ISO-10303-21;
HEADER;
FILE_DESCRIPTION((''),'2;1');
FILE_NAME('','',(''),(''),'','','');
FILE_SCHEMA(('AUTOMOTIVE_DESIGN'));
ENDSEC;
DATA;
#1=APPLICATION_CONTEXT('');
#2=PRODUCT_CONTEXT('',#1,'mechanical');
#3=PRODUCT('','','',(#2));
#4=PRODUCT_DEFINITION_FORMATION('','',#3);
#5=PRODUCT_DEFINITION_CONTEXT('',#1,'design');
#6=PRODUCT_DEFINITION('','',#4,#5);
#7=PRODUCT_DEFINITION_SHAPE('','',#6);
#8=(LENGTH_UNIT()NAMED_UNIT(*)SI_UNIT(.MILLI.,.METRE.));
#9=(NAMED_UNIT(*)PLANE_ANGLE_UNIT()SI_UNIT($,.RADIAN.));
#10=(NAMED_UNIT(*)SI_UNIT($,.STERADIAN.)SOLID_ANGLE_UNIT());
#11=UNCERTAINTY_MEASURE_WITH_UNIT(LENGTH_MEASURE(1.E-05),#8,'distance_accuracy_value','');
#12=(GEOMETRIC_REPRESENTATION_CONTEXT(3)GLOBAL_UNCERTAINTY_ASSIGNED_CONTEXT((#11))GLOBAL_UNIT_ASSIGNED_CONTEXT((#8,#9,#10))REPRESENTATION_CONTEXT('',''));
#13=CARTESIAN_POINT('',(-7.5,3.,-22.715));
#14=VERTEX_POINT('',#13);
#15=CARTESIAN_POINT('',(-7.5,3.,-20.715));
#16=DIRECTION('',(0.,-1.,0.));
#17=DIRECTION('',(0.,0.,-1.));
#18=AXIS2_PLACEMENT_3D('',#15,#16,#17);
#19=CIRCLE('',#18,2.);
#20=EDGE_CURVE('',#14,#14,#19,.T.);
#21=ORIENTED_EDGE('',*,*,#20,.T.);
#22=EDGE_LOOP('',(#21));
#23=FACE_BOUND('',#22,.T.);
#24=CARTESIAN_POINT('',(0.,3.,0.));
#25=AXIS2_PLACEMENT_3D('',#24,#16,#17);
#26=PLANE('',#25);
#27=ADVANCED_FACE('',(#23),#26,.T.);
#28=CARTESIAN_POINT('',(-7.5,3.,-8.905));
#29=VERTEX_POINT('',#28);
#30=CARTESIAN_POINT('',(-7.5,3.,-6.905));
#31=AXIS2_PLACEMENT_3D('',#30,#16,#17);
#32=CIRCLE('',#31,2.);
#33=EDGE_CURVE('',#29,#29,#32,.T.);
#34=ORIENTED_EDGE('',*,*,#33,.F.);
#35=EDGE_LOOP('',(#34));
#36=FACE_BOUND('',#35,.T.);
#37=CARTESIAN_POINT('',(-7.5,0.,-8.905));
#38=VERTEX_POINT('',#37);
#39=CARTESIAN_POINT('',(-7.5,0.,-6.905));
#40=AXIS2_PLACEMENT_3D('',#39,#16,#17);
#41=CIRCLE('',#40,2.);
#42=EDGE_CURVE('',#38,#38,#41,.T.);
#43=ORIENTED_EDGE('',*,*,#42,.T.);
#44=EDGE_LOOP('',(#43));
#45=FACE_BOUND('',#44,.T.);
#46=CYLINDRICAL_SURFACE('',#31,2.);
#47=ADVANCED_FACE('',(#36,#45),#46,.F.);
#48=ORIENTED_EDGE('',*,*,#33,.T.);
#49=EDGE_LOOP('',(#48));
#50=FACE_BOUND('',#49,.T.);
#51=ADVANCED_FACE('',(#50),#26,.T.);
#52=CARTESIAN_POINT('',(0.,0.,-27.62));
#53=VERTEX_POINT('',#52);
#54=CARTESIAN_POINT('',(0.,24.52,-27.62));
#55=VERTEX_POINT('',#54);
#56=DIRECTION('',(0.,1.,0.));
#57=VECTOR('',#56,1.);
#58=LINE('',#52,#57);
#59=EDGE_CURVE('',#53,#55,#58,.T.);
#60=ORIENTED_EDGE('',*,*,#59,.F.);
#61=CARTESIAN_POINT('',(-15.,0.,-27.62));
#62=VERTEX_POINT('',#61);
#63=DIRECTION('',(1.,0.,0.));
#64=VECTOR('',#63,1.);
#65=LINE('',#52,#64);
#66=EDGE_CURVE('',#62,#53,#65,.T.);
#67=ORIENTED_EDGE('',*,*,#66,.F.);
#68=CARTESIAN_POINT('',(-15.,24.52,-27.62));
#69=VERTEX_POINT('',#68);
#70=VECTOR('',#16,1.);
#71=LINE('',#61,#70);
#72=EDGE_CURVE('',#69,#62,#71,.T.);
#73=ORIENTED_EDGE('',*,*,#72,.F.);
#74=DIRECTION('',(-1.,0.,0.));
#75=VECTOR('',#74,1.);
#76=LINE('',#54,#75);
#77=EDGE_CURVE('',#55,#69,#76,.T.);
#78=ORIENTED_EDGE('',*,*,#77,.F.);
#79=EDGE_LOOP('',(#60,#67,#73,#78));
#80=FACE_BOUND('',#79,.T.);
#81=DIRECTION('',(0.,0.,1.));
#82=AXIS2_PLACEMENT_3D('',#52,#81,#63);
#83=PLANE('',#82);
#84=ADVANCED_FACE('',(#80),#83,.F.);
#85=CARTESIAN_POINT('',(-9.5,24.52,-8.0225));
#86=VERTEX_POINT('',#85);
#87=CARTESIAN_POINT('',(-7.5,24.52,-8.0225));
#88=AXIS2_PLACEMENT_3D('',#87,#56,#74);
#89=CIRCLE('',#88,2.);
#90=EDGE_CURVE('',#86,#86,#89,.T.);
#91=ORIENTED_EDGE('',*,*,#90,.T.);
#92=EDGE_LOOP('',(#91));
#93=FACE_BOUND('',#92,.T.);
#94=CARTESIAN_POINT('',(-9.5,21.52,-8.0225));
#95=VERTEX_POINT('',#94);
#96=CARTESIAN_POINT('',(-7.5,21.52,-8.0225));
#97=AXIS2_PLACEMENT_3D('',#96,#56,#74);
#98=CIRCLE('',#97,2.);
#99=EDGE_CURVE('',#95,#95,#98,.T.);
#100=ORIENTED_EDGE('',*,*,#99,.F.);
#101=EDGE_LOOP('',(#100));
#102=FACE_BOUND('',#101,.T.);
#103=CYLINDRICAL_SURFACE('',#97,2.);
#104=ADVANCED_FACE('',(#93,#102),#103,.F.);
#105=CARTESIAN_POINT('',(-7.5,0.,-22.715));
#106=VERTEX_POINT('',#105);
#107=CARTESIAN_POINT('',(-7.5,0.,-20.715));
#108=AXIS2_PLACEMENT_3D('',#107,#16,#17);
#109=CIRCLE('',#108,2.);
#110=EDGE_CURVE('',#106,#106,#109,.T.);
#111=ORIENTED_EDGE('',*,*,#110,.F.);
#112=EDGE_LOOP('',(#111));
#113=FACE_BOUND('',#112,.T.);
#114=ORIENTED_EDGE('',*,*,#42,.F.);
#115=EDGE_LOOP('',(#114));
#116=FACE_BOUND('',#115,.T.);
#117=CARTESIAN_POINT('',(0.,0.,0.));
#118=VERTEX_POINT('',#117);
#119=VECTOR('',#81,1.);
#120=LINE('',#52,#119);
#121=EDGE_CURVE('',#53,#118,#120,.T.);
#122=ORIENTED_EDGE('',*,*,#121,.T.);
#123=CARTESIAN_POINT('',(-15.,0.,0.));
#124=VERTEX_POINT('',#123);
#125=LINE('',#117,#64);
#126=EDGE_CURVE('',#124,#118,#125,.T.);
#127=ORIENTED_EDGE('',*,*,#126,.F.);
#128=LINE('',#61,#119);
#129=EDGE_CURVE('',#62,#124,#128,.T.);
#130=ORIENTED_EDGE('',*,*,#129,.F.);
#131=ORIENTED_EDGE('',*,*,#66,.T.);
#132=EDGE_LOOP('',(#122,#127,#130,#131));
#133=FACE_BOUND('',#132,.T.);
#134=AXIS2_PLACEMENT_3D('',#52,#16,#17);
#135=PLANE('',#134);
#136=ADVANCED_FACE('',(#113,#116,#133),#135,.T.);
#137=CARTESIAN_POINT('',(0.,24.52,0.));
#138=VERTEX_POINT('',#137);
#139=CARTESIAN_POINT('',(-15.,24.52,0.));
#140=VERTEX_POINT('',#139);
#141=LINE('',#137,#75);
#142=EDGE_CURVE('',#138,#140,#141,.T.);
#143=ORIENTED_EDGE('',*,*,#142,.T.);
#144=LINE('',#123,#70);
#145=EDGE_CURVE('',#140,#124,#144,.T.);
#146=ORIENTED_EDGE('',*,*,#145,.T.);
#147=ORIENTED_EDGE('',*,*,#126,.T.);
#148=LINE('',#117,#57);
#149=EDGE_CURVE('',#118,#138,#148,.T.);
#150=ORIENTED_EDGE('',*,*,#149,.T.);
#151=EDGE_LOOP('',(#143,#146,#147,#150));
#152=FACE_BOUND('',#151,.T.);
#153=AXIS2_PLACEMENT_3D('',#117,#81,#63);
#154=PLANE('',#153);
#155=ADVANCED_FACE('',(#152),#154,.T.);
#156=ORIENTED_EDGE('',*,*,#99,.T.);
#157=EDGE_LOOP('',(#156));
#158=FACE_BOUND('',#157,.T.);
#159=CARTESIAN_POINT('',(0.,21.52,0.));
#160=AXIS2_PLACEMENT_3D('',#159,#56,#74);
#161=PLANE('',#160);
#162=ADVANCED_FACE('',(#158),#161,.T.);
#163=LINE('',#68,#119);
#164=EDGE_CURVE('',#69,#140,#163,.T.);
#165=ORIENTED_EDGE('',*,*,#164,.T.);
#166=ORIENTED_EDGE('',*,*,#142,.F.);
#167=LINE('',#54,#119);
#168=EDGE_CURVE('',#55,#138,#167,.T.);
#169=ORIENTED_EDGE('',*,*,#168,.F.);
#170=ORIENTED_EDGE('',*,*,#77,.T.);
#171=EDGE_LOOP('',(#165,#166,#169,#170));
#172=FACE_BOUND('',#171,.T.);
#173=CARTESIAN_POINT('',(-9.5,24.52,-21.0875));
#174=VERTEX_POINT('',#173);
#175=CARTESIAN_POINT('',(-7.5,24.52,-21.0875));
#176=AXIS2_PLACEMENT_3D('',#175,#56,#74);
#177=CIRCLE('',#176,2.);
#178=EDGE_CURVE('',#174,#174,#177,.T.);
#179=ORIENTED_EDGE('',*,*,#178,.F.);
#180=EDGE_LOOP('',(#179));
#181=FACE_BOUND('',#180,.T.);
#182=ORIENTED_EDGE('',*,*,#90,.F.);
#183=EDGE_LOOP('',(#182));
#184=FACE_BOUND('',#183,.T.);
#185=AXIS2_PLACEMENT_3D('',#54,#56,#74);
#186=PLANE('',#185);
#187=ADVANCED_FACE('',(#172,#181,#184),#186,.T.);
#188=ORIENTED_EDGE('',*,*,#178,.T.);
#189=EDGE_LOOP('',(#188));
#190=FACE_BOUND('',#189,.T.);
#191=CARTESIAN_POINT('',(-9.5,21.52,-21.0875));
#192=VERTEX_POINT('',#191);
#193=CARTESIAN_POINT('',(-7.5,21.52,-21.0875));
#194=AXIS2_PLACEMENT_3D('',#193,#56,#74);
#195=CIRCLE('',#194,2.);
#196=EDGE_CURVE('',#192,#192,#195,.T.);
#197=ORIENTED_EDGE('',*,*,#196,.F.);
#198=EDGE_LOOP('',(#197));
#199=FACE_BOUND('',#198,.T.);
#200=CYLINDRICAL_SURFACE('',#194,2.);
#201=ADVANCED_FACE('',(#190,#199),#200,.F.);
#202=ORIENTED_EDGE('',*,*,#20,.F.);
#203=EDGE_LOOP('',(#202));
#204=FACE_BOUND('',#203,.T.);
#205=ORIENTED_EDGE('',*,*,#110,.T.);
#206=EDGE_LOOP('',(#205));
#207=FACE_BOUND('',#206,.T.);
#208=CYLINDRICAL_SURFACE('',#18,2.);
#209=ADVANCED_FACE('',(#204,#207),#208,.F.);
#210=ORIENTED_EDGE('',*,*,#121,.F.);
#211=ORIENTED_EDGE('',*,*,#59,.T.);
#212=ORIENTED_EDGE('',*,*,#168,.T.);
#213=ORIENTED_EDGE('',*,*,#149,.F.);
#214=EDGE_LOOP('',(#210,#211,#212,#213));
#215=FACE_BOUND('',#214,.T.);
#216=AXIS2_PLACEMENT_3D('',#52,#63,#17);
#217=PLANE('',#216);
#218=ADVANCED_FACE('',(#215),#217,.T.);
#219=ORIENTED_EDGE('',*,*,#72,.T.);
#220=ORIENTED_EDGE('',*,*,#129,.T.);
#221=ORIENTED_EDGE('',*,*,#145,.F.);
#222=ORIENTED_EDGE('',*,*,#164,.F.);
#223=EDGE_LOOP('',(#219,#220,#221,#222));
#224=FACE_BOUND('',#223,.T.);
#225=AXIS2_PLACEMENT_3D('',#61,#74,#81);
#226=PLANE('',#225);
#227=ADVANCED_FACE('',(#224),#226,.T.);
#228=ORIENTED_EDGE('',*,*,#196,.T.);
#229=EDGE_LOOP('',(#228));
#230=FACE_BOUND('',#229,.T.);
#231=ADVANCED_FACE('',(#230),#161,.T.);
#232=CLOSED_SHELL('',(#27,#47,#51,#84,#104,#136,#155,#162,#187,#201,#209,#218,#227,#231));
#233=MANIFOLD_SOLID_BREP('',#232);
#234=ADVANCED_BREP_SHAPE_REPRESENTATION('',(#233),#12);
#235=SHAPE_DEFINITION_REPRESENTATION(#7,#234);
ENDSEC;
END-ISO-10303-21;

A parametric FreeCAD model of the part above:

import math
import FreeCAD as App
import Part
import Sketcher
from FreeCAD import Vector


def add_polygon(sketch, points):
    """Adds a closed chain of lines whose ends are joined by coincident constraints."""
    first, n = sketch.GeometryCount, len(points)
    for a, b in zip(points, points[1:] + points[:1]):
        sketch.addGeometry(Part.LineSegment(App.Vector(*a, 0), App.Vector(*b, 0)), False)
    for i in range(n):
        sketch.addConstraint(Sketcher.Constraint("Coincident", first + i, 2, first + (i + 1) % n, 1))

doc = App.newDocument("Part")
body = doc.addObject("PartDesign::Body", "Body")

sketch1 = doc.addObject("Sketcher::SketchObject", "Sketch")
body.addObject(sketch1)
sketch1.AttachmentSupport = (doc.XY_Plane, [""])
sketch1.MapMode = "FlatFace"
add_polygon(sketch1, [(-15, 24.52), (-15, 0), (0, 0), (0, 24.52)])
sketch1.addConstraint([
    Sketcher.Constraint("Vertical", 0),
    Sketcher.Constraint("Horizontal", 1),
    Sketcher.Constraint("Vertical", 2),
    Sketcher.Constraint("Horizontal", 3),
    Sketcher.Constraint("Coincident", 1, 2, -1, 1),
    Sketcher.Constraint("DistanceX", 1, 1, 1, 2, 15.0),
    Sketcher.Constraint("DistanceY", 0, 2, 0, 1, 24.52),
])
pad1 = doc.addObject("PartDesign::Pad", "Pad")
body.addObject(pad1)
pad1.Profile = sketch1
pad1.Length = 27.62
pad1.Reversed = True

sketch2 = doc.addObject("Sketcher::SketchObject", "Sketch001")
body.addObject(sketch2)
sketch2.AttachmentSupport = (doc.XZ_Plane, [""])
sketch2.MapMode = "FlatFace"
sketch2.AttachmentOffset = App.Placement(Vector(0, 0, -24.52), App.Rotation())
sketch2.addGeometry([
    Part.ArcOfCircle(Part.Circle(Vector(-7.5, -21.0875, 0), Vector(0, 0, 1), 2), math.radians(90), math.radians(270)),
    Part.ArcOfCircle(Part.Circle(Vector(-7.5, -21.0875, 0), Vector(0, 0, 1), 2), math.radians(0), math.radians(90)),
    Part.ArcOfCircle(Part.Circle(Vector(-7.5, -21.0875, 0), Vector(0, 0, 1), 2), math.radians(-90), math.radians(0)),
    Part.ArcOfCircle(Part.Circle(Vector(-7.5, -8.0225, 0), Vector(0, 0, 1), 2), math.radians(-90), math.radians(0)),
    Part.ArcOfCircle(Part.Circle(Vector(-7.5, -8.0225, 0), Vector(0, 0, 1), 2), math.radians(90), math.radians(270)),
    Part.ArcOfCircle(Part.Circle(Vector(-7.5, -8.0225, 0), Vector(0, 0, 1), 2), math.radians(0), math.radians(90)),
], False)
sketch2.addConstraint([
    Sketcher.Constraint("Tangent", 0, 1, 1, 2),
    Sketcher.Constraint("Tangent", 1, 1, 2, 2),
    Sketcher.Constraint("Tangent", 2, 1, 0, 2),
    Sketcher.Constraint("Tangent", 3, 1, 4, 2),
    Sketcher.Constraint("Tangent", 4, 1, 5, 2),
    Sketcher.Constraint("Tangent", 5, 1, 3, 2),
    Sketcher.Constraint("Equal", 2, 3),
    Sketcher.Constraint("Horizontal", 2, 3, 1, 1),
    Sketcher.Constraint("Horizontal", 4, 3, 5, 1),
    Sketcher.Constraint("Vertical", 2, 3, 3, 3),
    Sketcher.Constraint("Vertical", 5, 3, 0, 1),
    Sketcher.Constraint("Vertical", 0, 1, 2, 1),
    Sketcher.Constraint("Vertical", 2, 1, 3, 1),
    Sketcher.Constraint("Vertical", 3, 1, 4, 1),
    Sketcher.Constraint("Radius", 0, 2.0),
    Sketcher.Constraint("DistanceX", 0, 3, -1, 1, 7.5),
    Sketcher.Constraint("DistanceY", 2, 3, 3, 3, 13.065),
    Sketcher.Constraint("DistanceY", 0, 3, -1, 1, 21.0875),
])
pocket1 = doc.addObject("PartDesign::Pocket", "Pocket")
body.addObject(pocket1)
pocket1.Profile = sketch2
pocket1.Length = 3
pocket1.Reversed = True

sketch3 = doc.addObject("Sketcher::SketchObject", "Sketch002")
body.addObject(sketch3)
sketch3.AttachmentSupport = (doc.XZ_Plane, [""])
sketch3.MapMode = "FlatFace"
sketch3.addGeometry([
    Part.ArcOfCircle(Part.Circle(Vector(-7.5, -6.905, 0), Vector(0, 0, 1), 2), math.radians(90), math.radians(270)),
    Part.ArcOfCircle(Part.Circle(Vector(-7.5, -6.905, 0), Vector(0, 0, 1), 2), math.radians(-90), math.radians(0)),
    Part.ArcOfCircle(Part.Circle(Vector(-7.5, -6.905, 0), Vector(0, 0, 1), 2), math.radians(0), math.radians(90)),
    Part.ArcOfCircle(Part.Circle(Vector(-7.5, -20.715, 0), Vector(0, 0, 1), 2), math.radians(0), math.radians(90)),
    Part.ArcOfCircle(Part.Circle(Vector(-7.5, -20.715, 0), Vector(0, 0, 1), 2), math.radians(90), math.radians(270)),
    Part.ArcOfCircle(Part.Circle(Vector(-7.5, -20.715, 0), Vector(0, 0, 1), 2), math.radians(-90), math.radians(0)),
], False)
sketch3.addConstraint([
    Sketcher.Constraint("Tangent", 0, 2, 1, 1),
    Sketcher.Constraint("Tangent", 1, 2, 2, 1),
    Sketcher.Constraint("Tangent", 2, 2, 0, 1),
    Sketcher.Constraint("Tangent", 3, 2, 4, 1),
    Sketcher.Constraint("Tangent", 4, 2, 5, 1),
    Sketcher.Constraint("Tangent", 5, 2, 3, 1),
    Sketcher.Constraint("Equal", 2, 3),
    Sketcher.Constraint("Horizontal", 2, 3, 1, 2),
    Sketcher.Constraint("Horizontal", 4, 3, 5, 2),
    Sketcher.Constraint("Vertical", 2, 3, 3, 3),
    Sketcher.Constraint("Vertical", 5, 3, 0, 2),
    Sketcher.Constraint("Vertical", 0, 2, 2, 2),
    Sketcher.Constraint("Vertical", 2, 2, 3, 2),
    Sketcher.Constraint("Vertical", 3, 2, 4, 2),
    Sketcher.Constraint("Radius", 0, 2.0),
    Sketcher.Constraint("DistanceX", 0, 3, -1, 1, 7.5),
    Sketcher.Constraint("DistanceY", 3, 3, 2, 3, 13.81),
    Sketcher.Constraint("DistanceY", 0, 3, -1, 1, 6.905),
])
pocket2 = doc.addObject("PartDesign::Pocket", "Pocket001")
body.addObject(pocket2)
pocket2.Profile = sketch3
pocket2.Length = 3

doc.recompute()
